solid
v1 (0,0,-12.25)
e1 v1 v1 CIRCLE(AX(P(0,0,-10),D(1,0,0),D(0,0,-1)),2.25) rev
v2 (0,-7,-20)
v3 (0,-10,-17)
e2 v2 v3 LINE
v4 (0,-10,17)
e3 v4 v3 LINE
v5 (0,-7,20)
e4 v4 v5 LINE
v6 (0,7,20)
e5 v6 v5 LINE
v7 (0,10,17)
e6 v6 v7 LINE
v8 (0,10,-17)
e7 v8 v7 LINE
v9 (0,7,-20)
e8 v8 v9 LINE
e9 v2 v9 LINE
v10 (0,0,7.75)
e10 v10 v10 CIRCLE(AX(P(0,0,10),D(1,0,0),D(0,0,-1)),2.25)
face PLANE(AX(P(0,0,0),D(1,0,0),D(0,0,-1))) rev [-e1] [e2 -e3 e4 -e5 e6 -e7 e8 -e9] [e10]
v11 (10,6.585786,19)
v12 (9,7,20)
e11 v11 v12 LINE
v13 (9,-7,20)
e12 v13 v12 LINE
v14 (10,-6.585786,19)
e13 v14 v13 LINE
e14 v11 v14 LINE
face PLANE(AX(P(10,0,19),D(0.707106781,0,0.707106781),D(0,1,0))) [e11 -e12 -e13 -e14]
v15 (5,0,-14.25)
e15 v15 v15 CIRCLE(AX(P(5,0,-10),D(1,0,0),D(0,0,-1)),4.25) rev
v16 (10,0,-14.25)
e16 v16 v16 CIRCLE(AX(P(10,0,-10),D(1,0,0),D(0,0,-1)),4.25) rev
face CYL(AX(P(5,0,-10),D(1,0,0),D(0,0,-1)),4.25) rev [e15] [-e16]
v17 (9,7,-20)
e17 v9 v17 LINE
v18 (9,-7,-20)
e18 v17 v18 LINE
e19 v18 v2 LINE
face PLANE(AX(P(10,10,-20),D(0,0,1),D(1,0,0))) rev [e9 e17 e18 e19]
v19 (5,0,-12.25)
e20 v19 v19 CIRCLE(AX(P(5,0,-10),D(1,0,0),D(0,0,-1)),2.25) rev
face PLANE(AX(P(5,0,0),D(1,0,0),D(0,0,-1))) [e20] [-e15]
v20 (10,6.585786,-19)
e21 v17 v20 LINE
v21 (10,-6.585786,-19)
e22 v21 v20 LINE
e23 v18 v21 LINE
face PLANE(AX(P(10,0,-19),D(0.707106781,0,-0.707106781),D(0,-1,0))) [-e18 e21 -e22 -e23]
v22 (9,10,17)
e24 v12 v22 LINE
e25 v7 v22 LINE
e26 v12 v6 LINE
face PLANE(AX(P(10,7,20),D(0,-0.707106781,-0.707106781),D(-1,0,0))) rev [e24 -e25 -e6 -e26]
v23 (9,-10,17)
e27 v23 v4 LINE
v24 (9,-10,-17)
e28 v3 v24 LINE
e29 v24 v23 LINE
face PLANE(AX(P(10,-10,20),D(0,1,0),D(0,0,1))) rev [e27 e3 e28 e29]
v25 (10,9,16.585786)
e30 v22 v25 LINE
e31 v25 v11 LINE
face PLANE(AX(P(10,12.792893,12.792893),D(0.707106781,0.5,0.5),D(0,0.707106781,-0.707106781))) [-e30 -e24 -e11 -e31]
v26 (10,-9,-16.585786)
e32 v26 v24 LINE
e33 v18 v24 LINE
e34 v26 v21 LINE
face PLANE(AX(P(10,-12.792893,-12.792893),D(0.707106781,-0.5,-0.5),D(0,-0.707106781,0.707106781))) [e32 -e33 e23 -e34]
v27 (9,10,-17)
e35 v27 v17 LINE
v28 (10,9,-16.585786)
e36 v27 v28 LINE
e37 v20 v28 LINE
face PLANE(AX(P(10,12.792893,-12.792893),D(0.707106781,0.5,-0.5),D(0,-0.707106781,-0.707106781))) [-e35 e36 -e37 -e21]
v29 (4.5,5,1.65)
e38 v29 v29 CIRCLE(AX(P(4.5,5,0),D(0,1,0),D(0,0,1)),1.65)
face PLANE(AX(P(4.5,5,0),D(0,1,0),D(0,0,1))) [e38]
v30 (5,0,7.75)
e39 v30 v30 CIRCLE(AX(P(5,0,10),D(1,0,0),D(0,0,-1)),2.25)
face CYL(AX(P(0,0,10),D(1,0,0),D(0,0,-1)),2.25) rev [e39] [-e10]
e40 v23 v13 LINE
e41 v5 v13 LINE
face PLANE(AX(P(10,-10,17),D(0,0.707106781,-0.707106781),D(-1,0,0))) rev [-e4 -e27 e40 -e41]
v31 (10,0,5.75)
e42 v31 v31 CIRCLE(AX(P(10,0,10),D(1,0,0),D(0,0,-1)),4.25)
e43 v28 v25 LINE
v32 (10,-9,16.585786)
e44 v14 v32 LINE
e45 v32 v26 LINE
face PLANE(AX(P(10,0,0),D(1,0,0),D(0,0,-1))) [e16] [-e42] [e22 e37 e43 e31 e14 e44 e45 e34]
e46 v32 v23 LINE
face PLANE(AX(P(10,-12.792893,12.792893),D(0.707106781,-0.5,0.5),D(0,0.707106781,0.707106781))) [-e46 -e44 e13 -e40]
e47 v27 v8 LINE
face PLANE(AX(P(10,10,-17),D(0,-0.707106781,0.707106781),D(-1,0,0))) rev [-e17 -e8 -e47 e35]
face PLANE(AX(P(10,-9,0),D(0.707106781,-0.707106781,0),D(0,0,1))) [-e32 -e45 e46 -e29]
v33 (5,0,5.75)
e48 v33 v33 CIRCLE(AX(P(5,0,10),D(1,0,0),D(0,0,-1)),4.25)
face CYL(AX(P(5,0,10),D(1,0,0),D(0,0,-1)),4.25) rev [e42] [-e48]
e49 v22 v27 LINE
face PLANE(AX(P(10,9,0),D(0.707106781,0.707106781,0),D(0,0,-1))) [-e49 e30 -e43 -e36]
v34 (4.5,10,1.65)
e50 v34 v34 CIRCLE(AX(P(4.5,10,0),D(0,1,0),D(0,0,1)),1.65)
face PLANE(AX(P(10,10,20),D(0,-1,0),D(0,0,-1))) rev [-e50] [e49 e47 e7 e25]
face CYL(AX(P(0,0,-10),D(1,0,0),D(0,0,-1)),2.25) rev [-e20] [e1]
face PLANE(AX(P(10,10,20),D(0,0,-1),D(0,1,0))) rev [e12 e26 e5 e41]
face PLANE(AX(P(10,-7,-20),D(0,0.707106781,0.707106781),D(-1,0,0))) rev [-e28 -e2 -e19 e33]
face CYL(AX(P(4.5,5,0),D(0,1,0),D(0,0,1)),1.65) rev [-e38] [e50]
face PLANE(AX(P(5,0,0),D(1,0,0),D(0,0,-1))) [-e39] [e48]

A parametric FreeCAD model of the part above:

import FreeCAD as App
import Part
import Sketcher
from FreeCAD import Vector


def edges_at(feature, points):
    """Names of the edges that pass closest to the given points."""
    edges = feature.Shape.Edges
    near = lambda p: min(range(len(edges)), key=lambda i: edges[i].distToShape(Part.Vertex(*p))[0])
    return sorted({f"Edge{near(p) + 1}" for p in points})

doc = App.newDocument("Part")
body = doc.addObject("PartDesign::Body", "Body")

# Sketch on YZ plane
sketch1 = doc.addObject("Sketcher::SketchObject", "Sketch")
body.addObject(sketch1)
sketch1.AttachmentSupport = (doc.YZ_Plane, [""])
sketch1.MapMode = "FlatFace"
sketch1.addGeometry([
    Part.LineSegment(Vector(10, 20, 0), Vector(-10, 20, 0)),
    Part.LineSegment(Vector(-10, 20, 0), Vector(-10, -20, 0)),
    Part.LineSegment(Vector(-10, -20, 0), Vector(10, -20, 0)),
    Part.LineSegment(Vector(10, -20, 0), Vector(10, 20, 0)),
], False)
sketch1.addConstraint([
    Sketcher.Constraint("Coincident", 0, 2, 1, 1),
    Sketcher.Constraint("Coincident", 1, 2, 2, 1),
    Sketcher.Constraint("Coincident", 2, 2, 3, 1),
    Sketcher.Constraint("Coincident", 3, 2, 0, 1),
    Sketcher.Constraint("Horizontal", 0),
    Sketcher.Constraint("Vertical", 1),
    Sketcher.Constraint("Horizontal", 2),
    Sketcher.Constraint("Vertical", 3),
    Sketcher.Constraint("Symmetric", 0, 2, 2, 2, -1, 1),
    Sketcher.Constraint("DistanceX", 0, 2, 0, 1, 20.0),
    Sketcher.Constraint("DistanceY", 1, 2, 1, 1, 40.0),
])
pad1 = doc.addObject("PartDesign::Pad", "Pad")
body.addObject(pad1)
pad1.Profile = sketch1
pad1.Length = 10
doc.recompute()

chamfer = doc.addObject("PartDesign::Chamfer", "Chamfer")
body.addObject(chamfer)
chamfer.Base = (pad1, edges_at(pad1, [
    (5, -10, -20),
    (5, -10, 20),
    (5, 10, 20),
    (5, 10, -20),
]))
chamfer.Size = 3
doc.recompute()

chamfer2 = doc.addObject("PartDesign::Chamfer", "Chamfer001")
body.addObject(chamfer2)
chamfer2.Base = (chamfer, edges_at(chamfer, [
    (10, 10, 0),
    (10, 0, -20),
    (10, 0, 20),
    (10, -10, 0),
    (10, 8.5, 18.5),
    (10, -8.5, 18.5),
    (10, -8.5, -18.5),
    (10, 8.5, -18.5),
]))
chamfer2.Size = 1

# Sketch on YZ plane
sketch2 = doc.addObject("Sketcher::SketchObject", "Sketch001")
body.addObject(sketch2)
sketch2.AttachmentSupport = (doc.YZ_Plane, [""])
sketch2.MapMode = "FlatFace"
sketch2.AttachmentOffset = App.Placement(Vector(0, 0, 10), App.Rotation())
sketch2.addGeometry([
    Part.Circle(Vector(0, 10, 0), Vector(0, 0, 1), 2.2),
    Part.Circle(Vector(0, -10, 0), Vector(0, 0, 1), 2.2),
], False)
sketch2.addConstraint([
    Sketcher.Constraint("Equal", 0, 1),
    Sketcher.Constraint("Symmetric", 0, 3, 1, 3, -1, 1),
    Sketcher.Constraint("PointOnObject", 0, 3, -2),
    Sketcher.Constraint("Diameter", 0, 4.5),
    Sketcher.Constraint("DistanceY", -1, 1, 0, 3, 10.0),
])
pocket1 = doc.addObject("PartDesign::Pocket", "Pocket")
body.addObject(pocket1)
pocket1.Profile = sketch2
pocket1.Length = 10

# Sketch on YZ plane
sketch3 = doc.addObject("Sketcher::SketchObject", "Sketch002")
body.addObject(sketch3)
sketch3.AttachmentSupport = (doc.YZ_Plane, [""])
sketch3.MapMode = "FlatFace"
sketch3.AttachmentOffset = App.Placement(Vector(0, 0, 10), App.Rotation())
sketch3.addGeometry([
    Part.Circle(Vector(0, 10, 0), Vector(0, 0, 1), 4.2),
    Part.Circle(Vector(0, 10, 0), Vector(0, 0, 1), 2.2),
    Part.Circle(Vector(0, -10, 0), Vector(0, 0, 1), 4.2),
    Part.Circle(Vector(0, -10, 0), Vector(0, 0, 1), 2.2),
], False)
sketch3.addConstraint([
    Sketcher.Constraint("Coincident", 1, 3, 0, 3),
    Sketcher.Constraint("Coincident", 3, 3, 2, 3),
    Sketcher.Constraint("Equal", 0, 2),
    Sketcher.Constraint("Equal", 1, 3),
    Sketcher.Constraint("Symmetric", 0, 3, 2, 3, -1, 1),
    Sketcher.Constraint("PointOnObject", 0, 3, -2),
    Sketcher.Constraint("Diameter", 0, 8.5),
    Sketcher.Constraint("Diameter", 1, 4.5),
    Sketcher.Constraint("DistanceY", -1, 1, 0, 3, 10.0),
])
pocket2 = doc.addObject("PartDesign::Pocket", "Pocket001")
body.addObject(pocket2)
pocket2.Profile = sketch3
pocket2.Length = 5

# Sketch on XZ plane
sketch4 = doc.addObject("Sketcher::SketchObject", "Sketch003")
body.addObject(sketch4)
sketch4.AttachmentSupport = (doc.XZ_Plane, [""])
sketch4.MapMode = "FlatFace"
sketch4.AttachmentOffset = App.Placement(Vector(0, 0, -10), App.Rotation())
sketch4.addGeometry(Part.Circle(Vector(4.5, 0, 0), Vector(0, 0, 1), 1.6), False)
sketch4.addConstraint([
    Sketcher.Constraint("PointOnObject", 0, 3, -1),
    Sketcher.Constraint("Diameter", 0, 3.3),
    Sketcher.Constraint("DistanceX", -1, 1, 0, 3, 4.5),
])
pocket3 = doc.addObject("PartDesign::Pocket", "Pocket002")
body.addObject(pocket3)
pocket3.Profile = sketch4
pocket3.Length = 5
pocket3.Reversed = True

doc.recompute()
